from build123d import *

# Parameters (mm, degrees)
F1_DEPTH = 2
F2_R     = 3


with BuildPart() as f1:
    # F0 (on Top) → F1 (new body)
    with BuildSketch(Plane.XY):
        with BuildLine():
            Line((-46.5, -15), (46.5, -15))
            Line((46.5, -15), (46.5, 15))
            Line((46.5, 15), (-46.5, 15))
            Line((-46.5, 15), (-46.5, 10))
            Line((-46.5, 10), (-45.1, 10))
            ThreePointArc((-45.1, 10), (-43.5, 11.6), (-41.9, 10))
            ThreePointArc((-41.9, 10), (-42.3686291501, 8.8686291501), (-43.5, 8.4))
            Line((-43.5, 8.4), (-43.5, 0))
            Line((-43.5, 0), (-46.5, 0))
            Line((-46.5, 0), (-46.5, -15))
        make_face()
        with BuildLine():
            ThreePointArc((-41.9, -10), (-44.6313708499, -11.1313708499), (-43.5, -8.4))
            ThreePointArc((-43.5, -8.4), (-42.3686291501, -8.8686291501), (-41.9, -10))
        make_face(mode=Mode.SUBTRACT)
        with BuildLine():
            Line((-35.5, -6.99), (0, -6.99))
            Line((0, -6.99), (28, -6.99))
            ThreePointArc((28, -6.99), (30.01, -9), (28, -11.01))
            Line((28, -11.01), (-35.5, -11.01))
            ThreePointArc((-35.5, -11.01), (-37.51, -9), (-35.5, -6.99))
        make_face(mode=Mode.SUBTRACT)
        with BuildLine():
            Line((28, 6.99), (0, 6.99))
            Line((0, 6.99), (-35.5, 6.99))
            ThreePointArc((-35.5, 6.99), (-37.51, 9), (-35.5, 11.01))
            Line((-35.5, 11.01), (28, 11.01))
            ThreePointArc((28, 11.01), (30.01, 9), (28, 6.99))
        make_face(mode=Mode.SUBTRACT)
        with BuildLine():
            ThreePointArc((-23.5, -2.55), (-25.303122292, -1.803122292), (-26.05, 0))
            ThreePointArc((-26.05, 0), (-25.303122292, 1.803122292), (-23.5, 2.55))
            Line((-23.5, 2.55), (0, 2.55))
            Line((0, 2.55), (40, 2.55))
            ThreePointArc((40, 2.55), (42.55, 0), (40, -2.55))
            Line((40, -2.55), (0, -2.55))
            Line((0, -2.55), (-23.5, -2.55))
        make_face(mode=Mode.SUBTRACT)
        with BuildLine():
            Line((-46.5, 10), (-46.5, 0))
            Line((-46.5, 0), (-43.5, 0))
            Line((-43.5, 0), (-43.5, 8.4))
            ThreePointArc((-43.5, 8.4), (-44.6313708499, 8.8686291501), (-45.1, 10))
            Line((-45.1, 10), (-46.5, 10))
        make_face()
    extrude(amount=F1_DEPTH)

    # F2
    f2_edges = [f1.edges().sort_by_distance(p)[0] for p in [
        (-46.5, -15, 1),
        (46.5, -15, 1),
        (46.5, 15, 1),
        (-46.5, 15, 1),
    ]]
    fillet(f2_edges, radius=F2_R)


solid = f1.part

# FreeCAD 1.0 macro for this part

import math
import FreeCAD as App
import Part
import Sketcher
Q = App.Units.Quantity


def edges_at(feature, points):
    """Names of the edges that pass closest to the given points."""
    edges = feature.Shape.Edges
    near = lambda p: min(range(len(edges)), key=lambda i: edges[i].distToShape(Part.Vertex(*p))[0])
    return sorted({f"Edge{near(p) + 1}" for p in points})

doc = App.newDocument("Part")
body = doc.addObject("PartDesign::Body", "Body")

# Sketch on XY plane
sketch1 = doc.addObject("Sketcher::SketchObject", "Sketch")
body.addObject(sketch1)
sketch1.AttachmentSupport = (doc.XY_Plane, [""])
sketch1.MapMode = "FlatFace"
sketch1.addGeometry([
    Part.LineSegment(App.Vector(-46.5, -15, 0), App.Vector(46.5, -15, 0)),  # 0
    Part.LineSegment(App.Vector(46.5, -15, 0), App.Vector(46.5, 15, 0)),  # 1
    Part.LineSegment(App.Vector(46.5, 15, 0), App.Vector(-46.5, 15, 0)),  # 2
    Part.LineSegment(App.Vector(-46.5, 15, 0), App.Vector(-46.5, -15, 0)),  # 3
    Part.ArcOfCircle(Part.Circle(App.Vector(-43.5, 10, 0), App.Vector(0, 0, 1), 1.6), math.radians(-90), math.radians(0)),  # 4
    Part.ArcOfCircle(Part.Circle(App.Vector(-43.5, 10, 0), App.Vector(0, 0, 1), 1.6), math.radians(180), math.radians(270)),  # 5
    Part.ArcOfCircle(Part.Circle(App.Vector(-43.5, 10, 0), App.Vector(0, 0, 1), 1.6), math.radians(0), math.radians(180)),  # 6
    Part.ArcOfCircle(Part.Circle(App.Vector(-43.5, -10, 0), App.Vector(0, 0, 1), 1.6), math.radians(0), math.radians(90)),  # 7
    Part.ArcOfCircle(Part.Circle(App.Vector(-43.5, -10, 0), App.Vector(0, 0, 1), 1.6), math.radians(90), math.radians(360)),  # 8
    Part.ArcOfCircle(Part.Circle(App.Vector(-35.5, -9, 0), App.Vector(0, 0, 1), 2), math.radians(90), math.radians(270)),  # 9
    Part.LineSegment(App.Vector(-35.5, -7, 0), App.Vector(28, -7, 0)),  # 10
    Part.ArcOfCircle(Part.Circle(App.Vector(28, -9, 0), App.Vector(0, 0, 1), 2), math.radians(-90), math.radians(90)),  # 11
    Part.LineSegment(App.Vector(28, -11, 0), App.Vector(-35.5, -11, 0)),  # 12
    Part.ArcOfCircle(Part.Circle(App.Vector(28, 9, 0), App.Vector(0, 0, 1), 2), math.radians(-90), math.radians(90)),  # 13
    Part.LineSegment(App.Vector(28, 7, 0), App.Vector(-35.5, 7, 0)),  # 14
    Part.ArcOfCircle(Part.Circle(App.Vector(-35.5, 9, 0), App.Vector(0, 0, 1), 2), math.radians(90), math.radians(270)),  # 15
    Part.LineSegment(App.Vector(-35.5, 11, 0), App.Vector(28, 11, 0)),  # 16
    Part.LineSegment(App.Vector(40, -2.5, 0), App.Vector(-23.5, -2.5, 0)),  # 17
    Part.ArcOfCircle(Part.Circle(App.Vector(-23.5, 0, 0), App.Vector(0, 0, 1), 2.5), math.radians(180), math.radians(270)),  # 18
    Part.ArcOfCircle(Part.Circle(App.Vector(-23.5, 0, 0), App.Vector(0, 0, 1), 2.5), math.radians(90), math.radians(180)),  # 19
    Part.LineSegment(App.Vector(-23.5, 2.5, 0), App.Vector(40, 2.5, 0)),  # 20
    Part.ArcOfCircle(Part.Circle(App.Vector(40, 0, 0), App.Vector(0, 0, 1), 2.5), math.radians(-90), math.radians(90)),  # 21
], False)
sketch1.addConstraint([
    Sketcher.Constraint("Coincident", 0, 2, 1, 1),
    Sketcher.Constraint("Coincident", 1, 2, 2, 1),
    Sketcher.Constraint("Coincident", 2, 2, 3, 1),
    Sketcher.Constraint("Coincident", 3, 2, 0, 1),
    Sketcher.Constraint("Tangent", 4, 1, 5, 2),
    Sketcher.Constraint("Tangent", 5, 1, 6, 2),
    Sketcher.Constraint("Tangent", 6, 1, 4, 2),
    Sketcher.Constraint("Tangent", 7, 1, 8, 2),
    Sketcher.Constraint("Coincident", 8, 1, 7, 2),
    Sketcher.Constraint("Tangent", 9, 1, 10, 1),
    Sketcher.Constraint("Tangent", 10, 2, 11, 2),
    Sketcher.Constraint("Tangent", 11, 1, 12, 1),
    Sketcher.Constraint("Tangent", 12, 2, 9, 2),
    Sketcher.Constraint("Tangent", 13, 1, 14, 1),
    Sketcher.Constraint("Tangent", 14, 2, 15, 2),
    Sketcher.Constraint("Tangent", 15, 1, 16, 1),
    Sketcher.Constraint("Tangent", 16, 2, 13, 2),
    Sketcher.Constraint("Tangent", 17, 2, 18, 2),
    Sketcher.Constraint("Tangent", 18, 1, 19, 2),
    Sketcher.Constraint("Tangent", 19, 1, 20, 1),
    Sketcher.Constraint("Tangent", 20, 2, 21, 2),
    Sketcher.Constraint("Tangent", 21, 1, 17, 1),
    Sketcher.Constraint("Horizontal", 0),
    Sketcher.Constraint("Vertical", 1),
    Sketcher.Constraint("Horizontal", 2),
    Sketcher.Constraint("Vertical", 3),
    Sketcher.Constraint("Horizontal", 10),
    Sketcher.Constraint("Horizontal", 12),
    Sketcher.Constraint("Horizontal", 14),
    Sketcher.Constraint("Horizontal", 16),
    Sketcher.Constraint("Horizontal", 17),
    Sketcher.Constraint("Horizontal", 20),
    Sketcher.Constraint("Equal", 6, 7),
    Sketcher.Constraint("Equal", 11, 13),
    Sketcher.Constraint("Equal", 18, 19),
    Sketcher.Constraint("Symmetric", 0, 2, 2, 2, -1, 1),
    Sketcher.Constraint("Symmetric", 4, 3, 7, 3, -1),
    Sketcher.Constraint("Symmetric", 11, 3, 13, 3, -1),
    Sketcher.Constraint("PointOnObject", 18, 3, -1),
    Sketcher.Constraint("PointOnObject", 18, 1, -1),
    Sketcher.Constraint("Horizontal", 6, 3, 5, 1),
    Sketcher.Constraint("Horizontal", 5, 1, 6, 1),
    Sketcher.Constraint("Horizontal", 8, 3, 7, 1),
    Sketcher.Constraint("Vertical", 9, 3, 15, 3),
    Sketcher.Constraint("Vertical", 8, 3, 4, 1),
    Sketcher.Constraint("Vertical", 4, 1, 8, 1),
    Sketcher.Constraint("Equal", 16, 17),
    Sketcher.Constraint("Radius", 4, Q("1.6 mm")),
    Sketcher.Constraint("DistanceX", 0, 1, 0, 2, Q("93 mm")),
    Sketcher.Constraint("DistanceY", 1, 1, 1, 2, Q("30 mm")),
    Sketcher.Constraint("Radius", 9, Q("2.01 mm")),
    Sketcher.Constraint("Radius", 18, Q("2.55 mm")),
    Sketcher.Constraint("DistanceX", 10, 1, 10, 2, Q("63.5 mm")),
    Sketcher.Constraint("DistanceY", -1, 1, 4, 3, Q("10 mm")),
    Sketcher.Constraint("DistanceY", 9, 3, -1, 1, Q("9 mm")),
    Sketcher.Constraint("DistanceX", -1, 1, 11, 3, Q("28 mm")),
    Sketcher.Constraint("DistanceX", -1, 1, 21, 3, Q("40 mm")),
    Sketcher.Constraint("DistanceX", 7, 3, 9, 3, Q("8 mm")),
])
pad1 = doc.addObject("PartDesign::Pad", "Pad")
body.addObject(pad1)
pad1.Profile = sketch1
pad1.Length = 2
doc.recompute()

fillet = doc.addObject("PartDesign::Fillet", "Fillet")
body.addObject(fillet)
fillet.Base = (pad1, edges_at(pad1, [
    (-46.5, -15, 1),
    (46.5, -15, 1),
    (46.5, 15, 1),
    (-46.5, 15, 1),
]))
fillet.Radius = 3

doc.recompute()
